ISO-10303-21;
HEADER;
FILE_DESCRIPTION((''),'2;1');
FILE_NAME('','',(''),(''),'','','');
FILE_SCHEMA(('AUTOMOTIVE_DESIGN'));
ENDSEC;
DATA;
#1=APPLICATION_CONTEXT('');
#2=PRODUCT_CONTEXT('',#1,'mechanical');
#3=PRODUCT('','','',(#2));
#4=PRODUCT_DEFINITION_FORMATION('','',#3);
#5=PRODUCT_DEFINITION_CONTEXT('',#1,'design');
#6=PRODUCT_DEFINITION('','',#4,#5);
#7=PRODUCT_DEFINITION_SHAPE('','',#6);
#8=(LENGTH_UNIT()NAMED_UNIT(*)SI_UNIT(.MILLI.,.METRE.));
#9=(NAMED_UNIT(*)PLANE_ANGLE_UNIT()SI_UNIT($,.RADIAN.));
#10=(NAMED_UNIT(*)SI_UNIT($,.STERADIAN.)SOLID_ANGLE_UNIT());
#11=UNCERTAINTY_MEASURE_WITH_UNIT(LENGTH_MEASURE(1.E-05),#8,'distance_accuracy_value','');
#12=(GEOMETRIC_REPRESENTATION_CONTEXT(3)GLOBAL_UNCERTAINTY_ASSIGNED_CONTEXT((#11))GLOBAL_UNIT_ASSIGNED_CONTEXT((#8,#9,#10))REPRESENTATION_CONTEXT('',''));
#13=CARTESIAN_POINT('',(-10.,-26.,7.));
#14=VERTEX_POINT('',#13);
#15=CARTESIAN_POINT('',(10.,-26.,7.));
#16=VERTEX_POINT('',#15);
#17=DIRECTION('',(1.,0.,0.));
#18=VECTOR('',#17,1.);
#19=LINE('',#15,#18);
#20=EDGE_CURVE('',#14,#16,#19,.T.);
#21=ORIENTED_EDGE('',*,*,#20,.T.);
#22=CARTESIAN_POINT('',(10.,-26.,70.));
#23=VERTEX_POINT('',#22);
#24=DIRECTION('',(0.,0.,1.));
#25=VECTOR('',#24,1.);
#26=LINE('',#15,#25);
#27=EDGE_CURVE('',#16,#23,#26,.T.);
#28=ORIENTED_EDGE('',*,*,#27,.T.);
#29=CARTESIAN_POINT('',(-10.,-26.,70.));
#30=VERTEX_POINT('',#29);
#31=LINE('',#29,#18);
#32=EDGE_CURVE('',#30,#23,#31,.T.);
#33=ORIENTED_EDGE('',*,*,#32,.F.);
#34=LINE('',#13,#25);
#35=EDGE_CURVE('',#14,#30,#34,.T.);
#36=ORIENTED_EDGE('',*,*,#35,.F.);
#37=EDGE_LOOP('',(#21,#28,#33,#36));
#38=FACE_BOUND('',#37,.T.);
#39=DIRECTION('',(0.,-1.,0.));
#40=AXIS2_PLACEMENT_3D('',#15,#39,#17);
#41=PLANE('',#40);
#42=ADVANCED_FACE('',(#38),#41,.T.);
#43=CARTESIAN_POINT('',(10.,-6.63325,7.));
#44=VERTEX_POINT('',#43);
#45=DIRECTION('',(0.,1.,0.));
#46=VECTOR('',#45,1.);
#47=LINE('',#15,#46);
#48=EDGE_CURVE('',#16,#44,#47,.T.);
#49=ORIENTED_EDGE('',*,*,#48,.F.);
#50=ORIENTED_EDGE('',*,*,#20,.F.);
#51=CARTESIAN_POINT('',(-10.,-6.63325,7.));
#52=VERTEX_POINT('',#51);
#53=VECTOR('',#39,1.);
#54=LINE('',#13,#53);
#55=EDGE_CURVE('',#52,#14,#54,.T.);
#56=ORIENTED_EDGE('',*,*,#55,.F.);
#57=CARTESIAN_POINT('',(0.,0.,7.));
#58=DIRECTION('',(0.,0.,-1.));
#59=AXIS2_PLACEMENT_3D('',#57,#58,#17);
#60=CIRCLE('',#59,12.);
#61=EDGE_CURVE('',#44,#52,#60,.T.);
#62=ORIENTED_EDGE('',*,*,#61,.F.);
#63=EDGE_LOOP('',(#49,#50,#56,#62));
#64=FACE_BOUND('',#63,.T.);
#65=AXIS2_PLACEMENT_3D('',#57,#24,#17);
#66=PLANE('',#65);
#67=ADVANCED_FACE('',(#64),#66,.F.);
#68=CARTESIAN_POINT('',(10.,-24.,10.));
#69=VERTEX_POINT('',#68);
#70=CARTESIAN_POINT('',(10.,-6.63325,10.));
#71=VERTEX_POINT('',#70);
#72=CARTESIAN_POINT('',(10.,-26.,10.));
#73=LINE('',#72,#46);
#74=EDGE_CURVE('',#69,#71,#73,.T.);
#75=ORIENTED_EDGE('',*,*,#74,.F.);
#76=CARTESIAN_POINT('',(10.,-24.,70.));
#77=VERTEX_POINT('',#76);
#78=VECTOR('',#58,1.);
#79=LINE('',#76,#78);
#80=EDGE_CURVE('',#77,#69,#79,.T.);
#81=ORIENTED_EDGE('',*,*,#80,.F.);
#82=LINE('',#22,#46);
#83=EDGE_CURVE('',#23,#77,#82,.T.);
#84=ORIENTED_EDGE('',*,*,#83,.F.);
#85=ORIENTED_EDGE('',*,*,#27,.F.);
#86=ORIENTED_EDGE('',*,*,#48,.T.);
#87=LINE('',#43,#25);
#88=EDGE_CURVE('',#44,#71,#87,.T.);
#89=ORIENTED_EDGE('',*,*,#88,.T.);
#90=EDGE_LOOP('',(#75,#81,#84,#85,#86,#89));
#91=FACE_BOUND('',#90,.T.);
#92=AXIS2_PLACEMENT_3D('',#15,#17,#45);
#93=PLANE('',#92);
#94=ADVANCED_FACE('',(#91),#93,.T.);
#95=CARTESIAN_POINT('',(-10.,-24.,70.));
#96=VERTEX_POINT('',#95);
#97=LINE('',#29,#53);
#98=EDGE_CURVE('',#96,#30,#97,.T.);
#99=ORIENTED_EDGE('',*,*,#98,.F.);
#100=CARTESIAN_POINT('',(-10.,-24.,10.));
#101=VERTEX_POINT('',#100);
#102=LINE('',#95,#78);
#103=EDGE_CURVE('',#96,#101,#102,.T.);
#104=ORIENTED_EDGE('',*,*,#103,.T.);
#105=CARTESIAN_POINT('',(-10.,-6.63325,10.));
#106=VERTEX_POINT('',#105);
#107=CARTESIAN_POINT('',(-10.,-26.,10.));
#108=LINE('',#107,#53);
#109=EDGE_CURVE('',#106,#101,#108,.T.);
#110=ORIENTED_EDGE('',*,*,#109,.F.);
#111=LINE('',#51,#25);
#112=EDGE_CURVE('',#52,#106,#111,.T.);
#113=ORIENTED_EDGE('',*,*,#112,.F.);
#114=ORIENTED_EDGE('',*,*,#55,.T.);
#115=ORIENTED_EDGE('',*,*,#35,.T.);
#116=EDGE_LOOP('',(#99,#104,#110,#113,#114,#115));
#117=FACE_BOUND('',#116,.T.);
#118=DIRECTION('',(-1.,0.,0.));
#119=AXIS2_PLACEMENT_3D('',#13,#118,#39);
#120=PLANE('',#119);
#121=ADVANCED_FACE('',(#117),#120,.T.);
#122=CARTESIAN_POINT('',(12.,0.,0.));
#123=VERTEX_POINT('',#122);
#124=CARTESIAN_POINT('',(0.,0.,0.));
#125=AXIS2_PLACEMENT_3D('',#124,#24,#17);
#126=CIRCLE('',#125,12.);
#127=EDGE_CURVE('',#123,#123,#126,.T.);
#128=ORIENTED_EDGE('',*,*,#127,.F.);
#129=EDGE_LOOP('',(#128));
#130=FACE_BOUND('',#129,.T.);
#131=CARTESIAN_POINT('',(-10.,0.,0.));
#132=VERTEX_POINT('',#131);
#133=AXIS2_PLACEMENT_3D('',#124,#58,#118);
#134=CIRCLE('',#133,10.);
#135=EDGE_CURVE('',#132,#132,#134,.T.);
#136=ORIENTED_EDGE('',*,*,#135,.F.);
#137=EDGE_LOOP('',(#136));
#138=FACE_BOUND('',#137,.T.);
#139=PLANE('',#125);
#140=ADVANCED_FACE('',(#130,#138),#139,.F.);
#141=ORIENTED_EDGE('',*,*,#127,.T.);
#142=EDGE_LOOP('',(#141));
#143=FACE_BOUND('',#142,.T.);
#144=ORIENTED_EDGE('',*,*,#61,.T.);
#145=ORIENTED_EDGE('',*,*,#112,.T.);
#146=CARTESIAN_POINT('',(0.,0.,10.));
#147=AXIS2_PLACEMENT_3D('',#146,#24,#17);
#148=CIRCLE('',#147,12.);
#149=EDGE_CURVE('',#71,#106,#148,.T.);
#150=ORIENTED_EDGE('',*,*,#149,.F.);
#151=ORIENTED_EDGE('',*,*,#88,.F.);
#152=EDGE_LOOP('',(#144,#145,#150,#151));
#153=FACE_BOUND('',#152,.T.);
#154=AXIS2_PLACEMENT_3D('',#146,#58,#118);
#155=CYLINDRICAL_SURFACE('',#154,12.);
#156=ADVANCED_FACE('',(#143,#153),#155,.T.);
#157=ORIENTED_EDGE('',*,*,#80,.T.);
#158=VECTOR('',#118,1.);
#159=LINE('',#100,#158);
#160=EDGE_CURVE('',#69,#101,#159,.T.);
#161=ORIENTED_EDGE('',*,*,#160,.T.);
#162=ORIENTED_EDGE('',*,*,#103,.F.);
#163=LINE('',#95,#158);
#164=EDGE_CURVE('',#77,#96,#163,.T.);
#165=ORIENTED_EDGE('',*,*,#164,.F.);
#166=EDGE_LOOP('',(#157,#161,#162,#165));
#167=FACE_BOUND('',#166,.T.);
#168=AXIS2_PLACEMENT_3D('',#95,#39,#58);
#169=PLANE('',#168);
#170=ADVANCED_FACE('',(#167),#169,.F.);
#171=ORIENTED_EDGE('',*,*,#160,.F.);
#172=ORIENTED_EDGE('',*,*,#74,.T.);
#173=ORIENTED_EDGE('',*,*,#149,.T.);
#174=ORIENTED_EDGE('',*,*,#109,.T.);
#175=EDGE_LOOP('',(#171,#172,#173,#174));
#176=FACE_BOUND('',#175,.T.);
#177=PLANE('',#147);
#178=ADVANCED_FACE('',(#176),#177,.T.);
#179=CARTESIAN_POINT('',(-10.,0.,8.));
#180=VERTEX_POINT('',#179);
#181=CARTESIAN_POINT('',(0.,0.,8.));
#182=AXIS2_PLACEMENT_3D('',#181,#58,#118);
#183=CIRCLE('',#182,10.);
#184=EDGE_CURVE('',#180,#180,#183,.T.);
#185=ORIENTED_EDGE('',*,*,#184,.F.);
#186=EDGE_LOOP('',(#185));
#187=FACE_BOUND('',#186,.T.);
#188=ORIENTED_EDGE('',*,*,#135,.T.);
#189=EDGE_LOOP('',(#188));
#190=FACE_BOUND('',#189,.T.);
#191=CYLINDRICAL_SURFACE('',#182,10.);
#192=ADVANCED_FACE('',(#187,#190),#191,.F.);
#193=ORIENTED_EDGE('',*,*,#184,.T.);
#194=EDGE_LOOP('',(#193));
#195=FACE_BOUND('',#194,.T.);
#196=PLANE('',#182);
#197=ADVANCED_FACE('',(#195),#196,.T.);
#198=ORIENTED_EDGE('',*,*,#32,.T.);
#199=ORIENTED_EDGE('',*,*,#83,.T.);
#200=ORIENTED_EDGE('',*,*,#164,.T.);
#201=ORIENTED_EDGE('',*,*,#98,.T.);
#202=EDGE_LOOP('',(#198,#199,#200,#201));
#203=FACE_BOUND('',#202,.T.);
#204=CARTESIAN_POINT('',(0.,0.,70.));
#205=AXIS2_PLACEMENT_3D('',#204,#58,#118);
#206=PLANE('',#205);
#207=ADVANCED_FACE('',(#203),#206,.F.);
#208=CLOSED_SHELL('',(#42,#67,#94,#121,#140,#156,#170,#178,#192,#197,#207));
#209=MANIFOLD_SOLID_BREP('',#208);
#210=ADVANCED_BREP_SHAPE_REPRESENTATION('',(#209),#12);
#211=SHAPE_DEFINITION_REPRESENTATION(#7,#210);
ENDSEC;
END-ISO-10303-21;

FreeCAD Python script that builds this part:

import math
import FreeCAD as App
import Part
import Sketcher

V = App.Vector
Q = App.Units.Quantity


def add_polygon(sketch, points):
    """Adds a closed chain of lines whose ends are joined by coincident constraints."""
    first, n = sketch.GeometryCount, len(points)
    for a, b in zip(points, points[1:] + points[:1]):
        sketch.addGeometry(Part.LineSegment(App.Vector(*a, 0), App.Vector(*b, 0)), False)
    for i in range(n):
        sketch.addConstraint(Sketcher.Constraint("Coincident", first + i, 2, first + (i + 1) % n, 1))

doc = App.newDocument("Part")
body = doc.addObject("PartDesign::Body", "Body")

# Sketch on XY plane
sketch1 = doc.addObject("Sketcher::SketchObject", "Sketch")
body.addObject(sketch1)
sketch1.AttachmentSupport = (doc.XY_Plane, [""])
sketch1.MapMode = "FlatFace"
sketch1.addGeometry(Part.Circle(V(0, 0, 0), V(0, 0, 1), 12), False)
sketch1.addConstraint([
    Sketcher.Constraint("Coincident", 0, 3, -1, 1),
    Sketcher.Constraint("Diameter", 0, Q("24 mm")),
])
pad1 = doc.addObject("PartDesign::Pad", "Pad")
body.addObject(pad1)
pad1.Profile = sketch1
pad1.Length = 10

# Sketch on XY plane
sketch2 = doc.addObject("Sketcher::SketchObject", "Sketch001")
body.addObject(sketch2)
sketch2.AttachmentSupport = (doc.XY_Plane, [""])
sketch2.MapMode = "FlatFace"
sketch2.AttachmentOffset = App.Placement(V(0, 0, 10), App.Rotation())
sketch2.addGeometry([
    Part.LineSegment(V(-10, -7, 0), V(-10, -26, 0)),
    Part.LineSegment(V(-10, -26, 0), V(10, -26, 0)),
    Part.LineSegment(V(10, -26, 0), V(10, -7, 0)),
    Part.ArcOfCircle(Part.Circle(V(0, 0, 0), V(0, 0, 1), 12), math.radians(-146), math.radians(-34)),
], False)
sketch2.addConstraint([
    Sketcher.Constraint("Coincident", 0, 2, 1, 1),
    Sketcher.Constraint("Coincident", 1, 2, 2, 1),
    Sketcher.Constraint("Coincident", 2, 2, 3, 2),
    Sketcher.Constraint("Coincident", 3, 1, 0, 1),
    Sketcher.Constraint("Vertical", 0),
    Sketcher.Constraint("Horizontal", 1),
    Sketcher.Constraint("Vertical", 2),
    Sketcher.Constraint("Coincident", 3, 3, -1, 1),
    Sketcher.Constraint("Horizontal", 2, 2, 3, 1),
    Sketcher.Constraint("Radius", 3, Q("12 mm")),
    Sketcher.Constraint("DistanceX", 1, 1, 1, 2, Q("20 mm")),
    Sketcher.Constraint("DistanceY", 0, 2, -1, 1, Q("26 mm")),
])
pad2 = doc.addObject("PartDesign::Pad", "Pad001")
body.addObject(pad2)
pad2.Profile = sketch2
pad2.Length = 3
pad2.Reversed = True

# Sketch on XY plane
sketch3 = doc.addObject("Sketcher::SketchObject", "Sketch002")
body.addObject(sketch3)
sketch3.AttachmentSupport = (doc.XY_Plane, [""])
sketch3.MapMode = "FlatFace"
sketch3.AttachmentOffset = App.Placement(V(0, 0, 10), App.Rotation())
add_polygon(sketch3, [(-10, -24), (-10, -26), (10, -26), (10, -24)])  # lines 0-3
sketch3.addConstraint([
    Sketcher.Constraint("Vertical", 0),
    Sketcher.Constraint("Horizontal", 1),
    Sketcher.Constraint("Vertical", 2),
    Sketcher.Constraint("Horizontal", 3),
    Sketcher.Constraint("DistanceX", 1, 1, 1, 2, Q("20 mm")),
    Sketcher.Constraint("DistanceY", 0, 2, 0, 1, Q("2 mm")),
    Sketcher.Constraint("DistanceX", 0, 2, -1, 1, Q("10 mm")),
    Sketcher.Constraint("DistanceY", 0, 2, -1, 1, Q("26 mm")),
])
pad3 = doc.addObject("PartDesign::Pad", "Pad002")
body.addObject(pad3)
pad3.Profile = sketch3
pad3.Length = 60

# Sketch on XY plane
sketch4 = doc.addObject("Sketcher::SketchObject", "Sketch003")
body.addObject(sketch4)
sketch4.AttachmentSupport = (doc.XY_Plane, [""])
sketch4.MapMode = "FlatFace"
sketch4.addGeometry(Part.Circle(V(0, 0, 0), V(0, 0, 1), 10), False)
sketch4.addConstraint([
    Sketcher.Constraint("Coincident", 0, 3, -1, 1),
    Sketcher.Constraint("Diameter", 0, Q("20 mm")),
])
pocket1 = doc.addObject("PartDesign::Pocket", "Pocket")
body.addObject(pocket1)
pocket1.Profile = sketch4
pocket1.Length = 8
pocket1.Reversed = True

doc.recompute()
